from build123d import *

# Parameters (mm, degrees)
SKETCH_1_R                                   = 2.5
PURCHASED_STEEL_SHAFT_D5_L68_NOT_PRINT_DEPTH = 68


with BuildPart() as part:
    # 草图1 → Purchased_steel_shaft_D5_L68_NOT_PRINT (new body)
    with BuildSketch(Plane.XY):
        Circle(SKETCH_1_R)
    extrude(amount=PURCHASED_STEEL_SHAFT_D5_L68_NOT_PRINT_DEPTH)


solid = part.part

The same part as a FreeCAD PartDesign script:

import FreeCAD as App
import Part
import Sketcher
from FreeCAD import Vector

doc = App.newDocument("Part")
body = doc.addObject("PartDesign::Body", "Body")

sketch1 = body.newObject("Sketcher::SketchObject", "Sketch")
sketch1.AttachmentSupport = (doc.getObject("XY_Plane"), [""])
sketch1.MapMode = "FlatFace"
sketch1.addGeometry(Part.Circle(Vector(0, 0, 0), Vector(0, 0, 1), 2.5), False)
sketch1.addConstraint([
    Sketcher.Constraint("Coincident", 0, 3, -1, 1),
    Sketcher.Constraint("Diameter", 0, 5.0),
])
pad1 = body.newObject("PartDesign::Pad", "Pad")
pad1.Profile = sketch1
pad1.Length = 68

doc.recompute()
